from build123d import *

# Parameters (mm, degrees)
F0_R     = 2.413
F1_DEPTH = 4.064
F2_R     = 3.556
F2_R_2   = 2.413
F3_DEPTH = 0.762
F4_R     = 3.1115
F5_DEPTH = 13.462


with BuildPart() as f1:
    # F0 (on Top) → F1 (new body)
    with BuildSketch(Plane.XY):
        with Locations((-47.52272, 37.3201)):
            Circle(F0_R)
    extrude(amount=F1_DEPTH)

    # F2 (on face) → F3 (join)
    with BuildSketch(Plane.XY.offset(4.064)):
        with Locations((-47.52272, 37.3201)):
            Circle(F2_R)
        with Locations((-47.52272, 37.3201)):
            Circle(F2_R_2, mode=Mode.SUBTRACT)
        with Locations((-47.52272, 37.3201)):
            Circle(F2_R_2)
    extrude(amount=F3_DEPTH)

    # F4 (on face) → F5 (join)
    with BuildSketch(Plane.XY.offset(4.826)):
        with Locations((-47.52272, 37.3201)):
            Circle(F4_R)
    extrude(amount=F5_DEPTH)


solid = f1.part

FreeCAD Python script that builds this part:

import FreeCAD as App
import Part
import Sketcher

V = App.Vector
Q = App.Units.Quantity

doc = App.newDocument("Part")
body = doc.addObject("PartDesign::Body", "Body")

sketch1 = doc.addObject("Sketcher::SketchObject", "Sketch")
body.addObject(sketch1)
sketch1.AttachmentSupport = (doc.XY_Plane, [""])
sketch1.MapMode = "FlatFace"
sketch1.addGeometry(Part.Circle(V(-47.5, 37.3, 0), V(0, 0, 1), 2.4), False)
sketch1.addConstraint([
    Sketcher.Constraint("Diameter", 0, Q("0.19 in")),
    Sketcher.Constraint("DistanceY", -1, 1, 0, 3, 37.3201),
    Sketcher.Constraint("DistanceX", 0, 3, -1, 1, 47.52272),
])
pad1 = doc.addObject("PartDesign::Pad", "Pad")
body.addObject(pad1)
pad1.Profile = sketch1
pad1.Length = Q("0.16 in")

sketch2 = doc.addObject("Sketcher::SketchObject", "Sketch001")
body.addObject(sketch2)
sketch2.AttachmentSupport = (doc.XY_Plane, [""])
sketch2.MapMode = "FlatFace"
sketch2.AttachmentOffset = App.Placement(V(0, 0, 0.16 * 25.4), App.Rotation())
sketch2.addGeometry(Part.Circle(V(-47.5, 37.3, 0), V(0, 0, 1), 3.6), False)
sketch2.addConstraint([
    Sketcher.Constraint("Diameter", 0, Q("0.28 in")),
    Sketcher.Constraint("DistanceY", -1, 1, 0, 3, 37.3201),
    Sketcher.Constraint("DistanceX", 0, 3, -1, 1, 47.52272),
])
pad2 = doc.addObject("PartDesign::Pad", "Pad001")
body.addObject(pad2)
pad2.Profile = sketch2
pad2.Length = Q("0.03 in")

sketch3 = doc.addObject("Sketcher::SketchObject", "Sketch002")
body.addObject(sketch3)
sketch3.AttachmentSupport = (doc.XY_Plane, [""])
sketch3.MapMode = "FlatFace"
sketch3.AttachmentOffset = App.Placement(V(0, 0, 0.19 * 25.4), App.Rotation())
sketch3.addGeometry(Part.Circle(V(-47.5, 37.3, 0), V(0, 0, 1), 3.1), False)
sketch3.addConstraint([
    Sketcher.Constraint("Diameter", 0, Q("0.245 in")),
    Sketcher.Constraint("DistanceY", -1, 1, 0, 3, 37.3201),
    Sketcher.Constraint("DistanceX", 0, 3, -1, 1, 47.52272),
])
pad3 = doc.addObject("PartDesign::Pad", "Pad002")
body.addObject(pad3)
pad3.Profile = sketch3
pad3.Length = Q("0.53 in")

doc.recompute()
